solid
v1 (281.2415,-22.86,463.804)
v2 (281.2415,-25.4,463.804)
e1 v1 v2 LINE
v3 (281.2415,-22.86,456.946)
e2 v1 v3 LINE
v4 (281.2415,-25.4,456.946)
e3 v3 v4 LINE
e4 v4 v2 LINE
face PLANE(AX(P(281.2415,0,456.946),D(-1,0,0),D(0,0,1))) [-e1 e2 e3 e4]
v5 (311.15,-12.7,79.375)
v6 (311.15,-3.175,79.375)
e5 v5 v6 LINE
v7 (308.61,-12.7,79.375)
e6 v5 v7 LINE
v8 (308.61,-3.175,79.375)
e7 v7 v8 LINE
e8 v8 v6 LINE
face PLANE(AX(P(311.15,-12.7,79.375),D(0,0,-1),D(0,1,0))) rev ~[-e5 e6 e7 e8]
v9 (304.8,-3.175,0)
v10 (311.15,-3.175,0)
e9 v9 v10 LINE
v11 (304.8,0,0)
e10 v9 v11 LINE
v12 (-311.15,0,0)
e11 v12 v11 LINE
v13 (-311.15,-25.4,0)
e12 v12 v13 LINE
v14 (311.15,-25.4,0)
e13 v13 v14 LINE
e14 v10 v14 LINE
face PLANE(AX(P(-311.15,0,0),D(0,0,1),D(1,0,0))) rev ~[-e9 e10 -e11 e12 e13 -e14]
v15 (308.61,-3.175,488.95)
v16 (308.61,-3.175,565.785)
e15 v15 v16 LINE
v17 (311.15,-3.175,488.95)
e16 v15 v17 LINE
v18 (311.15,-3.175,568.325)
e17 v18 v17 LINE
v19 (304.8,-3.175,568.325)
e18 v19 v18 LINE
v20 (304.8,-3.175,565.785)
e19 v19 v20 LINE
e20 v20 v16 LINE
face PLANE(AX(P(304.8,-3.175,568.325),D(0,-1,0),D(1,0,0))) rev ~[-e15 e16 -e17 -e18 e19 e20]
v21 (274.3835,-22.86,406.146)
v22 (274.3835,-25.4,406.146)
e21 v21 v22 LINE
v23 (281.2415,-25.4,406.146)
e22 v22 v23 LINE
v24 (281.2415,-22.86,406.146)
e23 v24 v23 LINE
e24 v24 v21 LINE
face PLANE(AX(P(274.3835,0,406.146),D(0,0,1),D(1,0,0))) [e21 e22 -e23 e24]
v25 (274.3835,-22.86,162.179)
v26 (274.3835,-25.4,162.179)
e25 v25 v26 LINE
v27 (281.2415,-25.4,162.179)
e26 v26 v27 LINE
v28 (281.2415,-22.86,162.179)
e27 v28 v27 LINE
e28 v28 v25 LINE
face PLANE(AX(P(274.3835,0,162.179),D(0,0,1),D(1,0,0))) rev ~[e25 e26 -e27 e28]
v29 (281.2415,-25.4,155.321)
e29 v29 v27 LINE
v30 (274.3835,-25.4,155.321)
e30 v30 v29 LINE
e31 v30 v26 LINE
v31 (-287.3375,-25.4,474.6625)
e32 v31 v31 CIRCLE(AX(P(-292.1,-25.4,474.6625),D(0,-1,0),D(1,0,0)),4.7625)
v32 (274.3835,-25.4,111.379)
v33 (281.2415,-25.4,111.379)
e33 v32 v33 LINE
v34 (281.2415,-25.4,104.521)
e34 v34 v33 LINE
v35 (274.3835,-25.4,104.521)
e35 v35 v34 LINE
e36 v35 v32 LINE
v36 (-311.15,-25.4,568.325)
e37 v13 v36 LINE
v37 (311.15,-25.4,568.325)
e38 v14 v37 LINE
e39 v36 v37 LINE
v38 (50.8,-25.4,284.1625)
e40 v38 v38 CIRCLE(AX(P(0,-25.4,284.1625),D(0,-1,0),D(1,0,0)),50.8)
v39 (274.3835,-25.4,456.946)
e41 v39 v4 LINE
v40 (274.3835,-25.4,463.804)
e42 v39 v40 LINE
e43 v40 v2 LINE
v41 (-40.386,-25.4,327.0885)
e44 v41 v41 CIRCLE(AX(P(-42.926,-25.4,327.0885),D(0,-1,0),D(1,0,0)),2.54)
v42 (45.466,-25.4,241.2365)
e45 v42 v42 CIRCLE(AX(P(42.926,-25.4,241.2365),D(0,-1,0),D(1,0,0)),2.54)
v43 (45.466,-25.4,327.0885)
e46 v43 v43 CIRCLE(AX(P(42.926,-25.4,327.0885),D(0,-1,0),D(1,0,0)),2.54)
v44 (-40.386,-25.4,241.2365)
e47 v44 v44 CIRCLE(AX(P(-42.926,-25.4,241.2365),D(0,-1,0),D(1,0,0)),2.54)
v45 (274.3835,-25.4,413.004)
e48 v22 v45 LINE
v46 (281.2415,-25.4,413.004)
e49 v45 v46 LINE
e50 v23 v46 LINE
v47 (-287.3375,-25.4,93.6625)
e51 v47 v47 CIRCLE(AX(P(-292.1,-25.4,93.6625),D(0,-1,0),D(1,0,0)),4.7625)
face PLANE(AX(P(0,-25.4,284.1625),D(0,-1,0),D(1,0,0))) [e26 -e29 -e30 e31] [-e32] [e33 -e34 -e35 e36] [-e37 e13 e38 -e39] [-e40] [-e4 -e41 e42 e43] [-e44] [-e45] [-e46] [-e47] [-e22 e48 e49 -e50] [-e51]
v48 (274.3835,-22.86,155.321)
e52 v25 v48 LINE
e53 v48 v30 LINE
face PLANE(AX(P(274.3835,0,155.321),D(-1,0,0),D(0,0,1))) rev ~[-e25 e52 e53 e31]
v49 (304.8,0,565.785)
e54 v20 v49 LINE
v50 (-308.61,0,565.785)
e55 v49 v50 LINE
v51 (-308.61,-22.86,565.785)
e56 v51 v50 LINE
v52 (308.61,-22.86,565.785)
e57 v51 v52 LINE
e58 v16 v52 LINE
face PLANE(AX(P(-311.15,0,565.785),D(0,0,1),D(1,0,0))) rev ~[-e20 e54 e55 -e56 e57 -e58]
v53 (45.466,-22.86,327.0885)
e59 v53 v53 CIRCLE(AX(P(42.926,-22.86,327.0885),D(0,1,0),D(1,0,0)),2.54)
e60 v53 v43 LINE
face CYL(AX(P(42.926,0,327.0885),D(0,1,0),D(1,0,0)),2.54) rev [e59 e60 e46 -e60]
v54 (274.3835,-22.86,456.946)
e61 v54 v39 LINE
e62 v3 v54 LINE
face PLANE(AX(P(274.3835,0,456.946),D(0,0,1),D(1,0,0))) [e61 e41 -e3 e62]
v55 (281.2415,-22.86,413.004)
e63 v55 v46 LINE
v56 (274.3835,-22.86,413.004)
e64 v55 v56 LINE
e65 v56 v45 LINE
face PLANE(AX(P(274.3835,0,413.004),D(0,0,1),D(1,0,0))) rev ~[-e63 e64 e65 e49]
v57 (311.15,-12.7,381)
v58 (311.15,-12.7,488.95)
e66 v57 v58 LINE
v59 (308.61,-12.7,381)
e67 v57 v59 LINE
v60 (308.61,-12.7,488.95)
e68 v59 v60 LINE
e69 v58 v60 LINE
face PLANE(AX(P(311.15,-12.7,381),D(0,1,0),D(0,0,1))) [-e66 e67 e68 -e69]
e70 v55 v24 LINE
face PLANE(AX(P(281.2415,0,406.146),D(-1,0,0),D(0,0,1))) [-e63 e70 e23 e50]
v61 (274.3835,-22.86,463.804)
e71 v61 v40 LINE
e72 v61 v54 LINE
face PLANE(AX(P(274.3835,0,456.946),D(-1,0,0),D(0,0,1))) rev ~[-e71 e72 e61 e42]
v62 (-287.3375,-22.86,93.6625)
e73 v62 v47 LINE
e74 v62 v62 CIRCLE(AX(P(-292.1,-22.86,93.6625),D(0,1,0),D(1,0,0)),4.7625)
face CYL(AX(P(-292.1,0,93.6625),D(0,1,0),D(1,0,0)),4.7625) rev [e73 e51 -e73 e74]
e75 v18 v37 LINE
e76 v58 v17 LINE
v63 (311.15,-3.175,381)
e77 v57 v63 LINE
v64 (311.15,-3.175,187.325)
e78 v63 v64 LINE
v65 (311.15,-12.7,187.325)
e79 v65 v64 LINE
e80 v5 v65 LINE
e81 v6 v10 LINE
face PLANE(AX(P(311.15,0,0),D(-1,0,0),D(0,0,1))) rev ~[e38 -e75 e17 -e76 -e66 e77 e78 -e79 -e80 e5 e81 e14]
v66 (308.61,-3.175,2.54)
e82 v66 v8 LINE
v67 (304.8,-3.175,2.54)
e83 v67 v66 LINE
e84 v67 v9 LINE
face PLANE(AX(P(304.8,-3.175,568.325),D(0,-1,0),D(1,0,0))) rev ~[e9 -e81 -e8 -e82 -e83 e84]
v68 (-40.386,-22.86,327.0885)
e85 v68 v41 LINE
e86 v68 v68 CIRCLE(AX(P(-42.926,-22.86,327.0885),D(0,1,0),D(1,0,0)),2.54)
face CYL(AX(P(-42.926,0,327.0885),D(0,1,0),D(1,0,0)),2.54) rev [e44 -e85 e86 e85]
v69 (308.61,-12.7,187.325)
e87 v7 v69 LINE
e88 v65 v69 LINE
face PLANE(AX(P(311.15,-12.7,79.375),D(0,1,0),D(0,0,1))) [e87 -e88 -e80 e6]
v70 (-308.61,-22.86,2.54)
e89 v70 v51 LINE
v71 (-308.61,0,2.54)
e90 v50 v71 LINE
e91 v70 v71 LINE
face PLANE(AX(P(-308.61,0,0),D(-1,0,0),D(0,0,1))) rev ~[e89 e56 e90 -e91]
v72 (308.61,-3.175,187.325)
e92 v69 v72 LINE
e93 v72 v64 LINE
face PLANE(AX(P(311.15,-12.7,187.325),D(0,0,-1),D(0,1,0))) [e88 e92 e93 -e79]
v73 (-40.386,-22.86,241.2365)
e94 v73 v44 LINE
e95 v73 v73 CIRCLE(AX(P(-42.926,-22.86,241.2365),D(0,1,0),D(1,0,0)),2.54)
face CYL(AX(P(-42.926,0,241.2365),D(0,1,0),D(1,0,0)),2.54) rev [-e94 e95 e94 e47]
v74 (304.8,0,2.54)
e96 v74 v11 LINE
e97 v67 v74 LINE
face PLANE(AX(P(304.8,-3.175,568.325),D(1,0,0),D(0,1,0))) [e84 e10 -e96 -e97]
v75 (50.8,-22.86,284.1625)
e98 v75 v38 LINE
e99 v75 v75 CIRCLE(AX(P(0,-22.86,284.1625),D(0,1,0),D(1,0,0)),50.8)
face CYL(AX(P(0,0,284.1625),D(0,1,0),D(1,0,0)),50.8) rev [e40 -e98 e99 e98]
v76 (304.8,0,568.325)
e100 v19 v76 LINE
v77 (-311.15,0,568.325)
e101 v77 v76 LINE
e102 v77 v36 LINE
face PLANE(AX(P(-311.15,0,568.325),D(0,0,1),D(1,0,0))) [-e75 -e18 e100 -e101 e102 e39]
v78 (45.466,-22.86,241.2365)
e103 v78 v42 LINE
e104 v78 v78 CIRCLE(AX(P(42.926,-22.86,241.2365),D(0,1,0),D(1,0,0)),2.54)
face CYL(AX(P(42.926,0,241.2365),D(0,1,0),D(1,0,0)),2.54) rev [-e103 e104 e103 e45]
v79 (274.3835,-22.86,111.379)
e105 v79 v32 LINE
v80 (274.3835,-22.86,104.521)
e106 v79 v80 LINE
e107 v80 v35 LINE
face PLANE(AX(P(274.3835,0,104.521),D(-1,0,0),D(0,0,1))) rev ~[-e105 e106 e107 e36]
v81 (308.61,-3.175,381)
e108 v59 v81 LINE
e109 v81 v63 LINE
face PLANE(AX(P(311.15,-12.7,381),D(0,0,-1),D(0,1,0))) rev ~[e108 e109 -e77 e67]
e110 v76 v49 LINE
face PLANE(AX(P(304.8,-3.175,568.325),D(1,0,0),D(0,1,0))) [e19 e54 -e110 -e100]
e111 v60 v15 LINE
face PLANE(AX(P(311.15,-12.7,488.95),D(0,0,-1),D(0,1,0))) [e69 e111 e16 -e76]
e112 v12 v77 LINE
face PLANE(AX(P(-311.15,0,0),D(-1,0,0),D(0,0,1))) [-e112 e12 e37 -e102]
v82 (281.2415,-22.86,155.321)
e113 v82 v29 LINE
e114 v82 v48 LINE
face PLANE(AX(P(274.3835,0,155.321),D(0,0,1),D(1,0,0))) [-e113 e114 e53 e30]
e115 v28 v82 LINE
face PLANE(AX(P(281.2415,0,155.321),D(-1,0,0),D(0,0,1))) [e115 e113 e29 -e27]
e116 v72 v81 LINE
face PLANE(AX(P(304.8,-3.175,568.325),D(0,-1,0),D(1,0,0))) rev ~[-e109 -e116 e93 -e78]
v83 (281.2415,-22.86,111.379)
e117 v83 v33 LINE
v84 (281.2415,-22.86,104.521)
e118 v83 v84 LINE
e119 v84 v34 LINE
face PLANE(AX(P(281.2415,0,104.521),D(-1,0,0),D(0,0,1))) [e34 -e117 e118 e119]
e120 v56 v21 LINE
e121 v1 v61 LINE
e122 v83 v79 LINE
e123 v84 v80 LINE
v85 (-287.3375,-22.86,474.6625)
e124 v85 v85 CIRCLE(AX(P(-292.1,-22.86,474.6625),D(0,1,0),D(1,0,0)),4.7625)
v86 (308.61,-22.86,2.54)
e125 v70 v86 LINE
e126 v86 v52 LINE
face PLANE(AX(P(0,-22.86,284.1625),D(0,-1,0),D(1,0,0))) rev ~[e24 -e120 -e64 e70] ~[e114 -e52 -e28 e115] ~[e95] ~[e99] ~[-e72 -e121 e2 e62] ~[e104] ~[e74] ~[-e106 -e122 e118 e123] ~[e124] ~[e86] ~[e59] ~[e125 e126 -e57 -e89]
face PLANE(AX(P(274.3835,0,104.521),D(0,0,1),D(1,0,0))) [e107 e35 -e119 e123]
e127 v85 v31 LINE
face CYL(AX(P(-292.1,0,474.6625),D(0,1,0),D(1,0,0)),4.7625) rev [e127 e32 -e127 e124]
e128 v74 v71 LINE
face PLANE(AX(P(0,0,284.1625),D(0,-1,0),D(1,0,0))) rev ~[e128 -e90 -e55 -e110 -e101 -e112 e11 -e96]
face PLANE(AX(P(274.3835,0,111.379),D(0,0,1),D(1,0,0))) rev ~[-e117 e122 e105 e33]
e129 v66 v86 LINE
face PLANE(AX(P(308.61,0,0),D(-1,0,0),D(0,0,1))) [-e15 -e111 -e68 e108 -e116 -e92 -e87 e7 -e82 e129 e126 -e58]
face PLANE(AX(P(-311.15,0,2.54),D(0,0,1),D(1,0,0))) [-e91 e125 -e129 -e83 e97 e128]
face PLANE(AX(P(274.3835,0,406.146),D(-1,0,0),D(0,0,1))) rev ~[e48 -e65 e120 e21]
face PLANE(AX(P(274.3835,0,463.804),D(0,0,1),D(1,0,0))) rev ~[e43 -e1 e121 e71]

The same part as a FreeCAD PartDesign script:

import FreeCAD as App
import Part
import Sketcher
from FreeCAD import Vector
Q = App.Units.Quantity


def faces_at(feature, points):
    """Names of the faces that lie closest to the given points."""
    faces = feature.Shape.Faces
    near = lambda p: min(range(len(faces)), key=lambda i: faces[i].distToShape(Part.Vertex(*p))[0])
    return sorted({f"Face{near(p) + 1}" for p in points})


def add_polygon(sketch, points):
    """Adds a closed chain of lines whose ends are joined by coincident constraints."""
    first, n = sketch.GeometryCount, len(points)
    for a, b in zip(points, points[1:] + points[:1]):
        sketch.addGeometry(Part.LineSegment(App.Vector(*a, 0), App.Vector(*b, 0)), False)
    for i in range(n):
        sketch.addConstraint(Sketcher.Constraint("Coincident", first + i, 2, first + (i + 1) % n, 1))

doc = App.newDocument("Part")
body = doc.addObject("PartDesign::Body", "Body")

sketch1 = body.newObject("Sketcher::SketchObject", "Sketch")
sketch1.AttachmentSupport = (doc.getObject("XZ_Plane"), [""])
sketch1.MapMode = "FlatFace"
add_polygon(sketch1, [(-311.1, 568.3), (-311.1, 0), (311.1, 0), (311.1, 568.3)])
sketch1.addGeometry(Part.Circle(Vector(-292.1, 93.7, 0), Vector(0, 0, 1), 4.8), False)
sketch1.addGeometry(Part.Circle(Vector(-42.9, 241.2, 0), Vector(0, 0, 1), 2.5), False)
add_polygon(sketch1, [(281.2, 104.5), (274.4, 104.5), (274.4, 111.4), (281.2, 111.4)])
add_polygon(sketch1, [(281.2, 155.3), (274.4, 155.3), (274.4, 162.2), (281.2, 162.2)])
sketch1.addGeometry(Part.Circle(Vector(42.9, 241.2, 0), Vector(0, 0, 1), 2.5), False)
sketch1.addGeometry(Part.Circle(Vector(-42.9, 327.1, 0), Vector(0, 0, 1), 2.5), False)
sketch1.addGeometry(Part.Circle(Vector(-292.1, 474.7, 0), Vector(0, 0, 1), 4.8), False)
sketch1.addGeometry(Part.Circle(Vector(0, 284.2, 0), Vector(0, 0, 1), 50.8), False)
sketch1.addGeometry(Part.Circle(Vector(42.9, 327.1, 0), Vector(0, 0, 1), 2.5), False)
add_polygon(sketch1, [(281.2, 406.1), (274.4, 406.1), (274.4, 413), (281.2, 413)])
add_polygon(sketch1, [(281.2, 456.9), (274.4, 456.9), (274.4, 463.8), (281.2, 463.8)])
sketch1.addConstraint(Sketcher.Constraint("Vertical", 0))
sketch1.addConstraint(Sketcher.Constraint("Horizontal", 1))
sketch1.addConstraint(Sketcher.Constraint("Vertical", 2))
sketch1.addConstraint(Sketcher.Constraint("Horizontal", 3))
sketch1.addConstraint(Sketcher.Constraint("Horizontal", 6))
sketch1.addConstraint(Sketcher.Constraint("Vertical", 7))
sketch1.addConstraint(Sketcher.Constraint("Horizontal", 8))
sketch1.addConstraint(Sketcher.Constraint("Vertical", 9))
sketch1.addConstraint(Sketcher.Constraint("Horizontal", 10))
sketch1.addConstraint(Sketcher.Constraint("Vertical", 11))
sketch1.addConstraint(Sketcher.Constraint("Horizontal", 12))
sketch1.addConstraint(Sketcher.Constraint("Vertical", 13))
sketch1.addConstraint(Sketcher.Constraint("Horizontal", 19))
sketch1.addConstraint(Sketcher.Constraint("Vertical", 20))
sketch1.addConstraint(Sketcher.Constraint("Horizontal", 21))
sketch1.addConstraint(Sketcher.Constraint("Vertical", 22))
sketch1.addConstraint(Sketcher.Constraint("Horizontal", 23))
sketch1.addConstraint(Sketcher.Constraint("Vertical", 24))
sketch1.addConstraint(Sketcher.Constraint("Horizontal", 25))
sketch1.addConstraint(Sketcher.Constraint("Vertical", 26))
sketch1.addConstraint(Sketcher.Constraint("Equal", 5, 14))
sketch1.addConstraint(Sketcher.Constraint("Equal", 14, 15))
sketch1.addConstraint(Sketcher.Constraint("Equal", 4, 16))
sketch1.addConstraint(Sketcher.Constraint("Equal", 15, 18))
sketch1.addConstraint(Sketcher.Constraint("Symmetric", 0, 2, 1, 2, -1, 1))
sketch1.addConstraint(Sketcher.Constraint("Symmetric", 5, 3, 14, 3, -2))
sketch1.addConstraint(Sketcher.Constraint("Symmetric", 15, 3, 18, 3, -2))
sketch1.addConstraint(Sketcher.Constraint("PointOnObject", 17, 3, -2))
sketch1.addConstraint(Sketcher.Constraint("Vertical", 5, 3, 15, 3))
sketch1.addConstraint(Sketcher.Constraint("Vertical", 4, 3, 16, 3))
sketch1.addConstraint(Sketcher.Constraint("Vertical", 7, 2, 10, 2))
sketch1.addConstraint(Sketcher.Constraint("Vertical", 9, 2, 12, 2))
sketch1.addConstraint(Sketcher.Constraint("Vertical", 11, 2, 19, 2))
sketch1.addConstraint(Sketcher.Constraint("Vertical", 13, 2, 21, 2))
sketch1.addConstraint(Sketcher.Constraint("Vertical", 20, 2, 23, 2))
sketch1.addConstraint(Sketcher.Constraint("Vertical", 22, 2, 25, 2))
sketch1.addConstraint(Sketcher.Constraint("Equal", 25, 7))
sketch1.addConstraint(Sketcher.Constraint("Equal", 9, 11))
sketch1.addConstraint(Sketcher.Constraint("Equal", 13, 20))
sketch1.addConstraint(Sketcher.Constraint("Equal", 22, 24))
sketch1.addConstraint(Sketcher.Constraint("Diameter", 17, Q("4 in")))
sketch1.addConstraint(Sketcher.Constraint("Diameter", 5, Q("0.2 in")))
sketch1.addConstraint(Sketcher.Constraint("Diameter", 4, Q("0.375 in")))
sketch1.addConstraint(Sketcher.Constraint("DistanceX", 1, 1, 1, 2, Q("24.5 in")))
sketch1.addConstraint(Sketcher.Constraint("DistanceY", 4, 3, 16, 3, Q("15 in")))
sketch1.addConstraint(Sketcher.Constraint("DistanceY", 6, 2, 10, 2, Q("2 in")))
sketch1.addConstraint(Sketcher.Constraint("DistanceY", 19, 2, 23, 2, Q("2 in")))
sketch1.addConstraint(Sketcher.Constraint("DistanceX", 6, 2, 6, 1, Q("0.27 in")))
sketch1.addConstraint(Sketcher.Constraint("DistanceX", 4, 3, -1, 1, Q("11.5 in")))
sketch1.addConstraint(Sketcher.Constraint("DistanceY", 4, 3, 17, 3, Q("7.5 in")))
sketch1.addConstraint(Sketcher.Constraint("DistanceY", 0, 2, 0, 1, Q("22.375 in")))
sketch1.addConstraint(Sketcher.Constraint("DistanceX", 5, 3, -1, 1, Q("1.69 in")))
sketch1.addConstraint(Sketcher.Constraint("DistanceY", -1, 1, 19, 2, Q("15.99 in")))
sketch1.addConstraint(Sketcher.Constraint("DistanceY", 4, 3, 5, 3, Q("5.81 in")))
sketch1.addConstraint(Sketcher.Constraint("DistanceY", 5, 3, 15, 3, Q("3.38 in")))
sketch1.addConstraint(Sketcher.Constraint("DistanceY", -1, 1, 4, 3, Q("3.6875 in")))
sketch1.addConstraint(Sketcher.Constraint("DistanceY", -1, 1, 6, 2, Q("4.115 in")))
sketch1.addConstraint(Sketcher.Constraint("DistanceX", -1, 1, 6, 2, Q("10.8025 in")))
pad1 = body.newObject("PartDesign::Pad", "Pad")
pad1.Profile = sketch1
pad1.Length = Q("1 in")
doc.recompute()

thickness = body.newObject("PartDesign::Thickness", "Thickness")
thickness.Base = (pad1, faces_at(pad1, [(-124.46, 0, 170.498)]))
thickness.Value = Q("0.1 in")
thickness.Reversed = True
thickness.Join = "Intersection"

sketch2 = body.newObject("Sketcher::SketchObject", "Sketch001")
sketch2.AttachmentSupport = (doc.getObject("XY_Plane"), [""])
sketch2.MapMode = "FlatFace"
sketch2.AttachmentOffset = App.Placement(Vector(0, 0, 0.1 * 25.4), App.Rotation())
add_polygon(sketch2, [(-309, 0), (-309, -23), (309, -23), (309, 0)])
sketch2.addConstraint(Sketcher.Constraint("Vertical", 0))
sketch2.addConstraint(Sketcher.Constraint("Horizontal", 1))
sketch2.addConstraint(Sketcher.Constraint("Vertical", 2))
sketch2.addConstraint(Sketcher.Constraint("Horizontal", 3))
sketch2.addConstraint(Sketcher.Constraint("Symmetric", 2, 2, 3, 2, -1, 1))
sketch2.addConstraint(Sketcher.Constraint("DistanceX", 1, 1, 1, 2, Q("24.3 in")))
sketch2.addConstraint(Sketcher.Constraint("DistanceY", 0, 2, 0, 1, Q("0.9 in")))
pocket1 = body.newObject("PartDesign::Pocket", "Pocket")
pocket1.Profile = sketch2
pocket1.Length = Q("22.175 in")
pocket1.Reversed = True

sketch3 = body.newObject("Sketcher::SketchObject", "Sketch002")
sketch3.AttachmentSupport = (doc.getObject("XY_Plane"), [""])
sketch3.MapMode = "FlatFace"
sketch3.AttachmentOffset = App.Placement(Vector(0, 0, 22.375 * 25.4), App.Rotation())
add_polygon(sketch3, [(304.8, 0), (304.8, -3.2), (311.1, -3.2), (311.1, 0)])
sketch3.addConstraint(Sketcher.Constraint("Vertical", 0))
sketch3.addConstraint(Sketcher.Constraint("Horizontal", 1))
sketch3.addConstraint(Sketcher.Constraint("Vertical", 2))
sketch3.addConstraint(Sketcher.Constraint("Horizontal", 3))
sketch3.addConstraint(Sketcher.Constraint("PointOnObject", 2, 2, -1))
sketch3.addConstraint(Sketcher.Constraint("DistanceX", -1, 1, 0, 2, Q("12 in")))
sketch3.addConstraint(Sketcher.Constraint("DistanceX", 1, 1, 1, 2, Q("0.25 in")))
sketch3.addConstraint(Sketcher.Constraint("DistanceY", 0, 2, 0, 1, Q("0.125 in")))
pocket2 = body.newObject("PartDesign::Pocket", "Pocket001")
pocket2.Profile = sketch3
pocket2.Type = "ThroughAll"

sketch4 = body.newObject("Sketcher::SketchObject", "Sketch003")
sketch4.AttachmentSupport = (doc.getObject("YZ_Plane"), [""])
sketch4.MapMode = "FlatFace"
sketch4.AttachmentOffset = App.Placement(Vector(0, 0, 12.25 * 25.4), App.Rotation())
add_polygon(sketch4, [(-13, 489), (-13, 381), (0, 381), (0, 489)])
add_polygon(sketch4, [(-13, 187), (-13, 79), (0, 79), (0, 187)])
sketch4.addConstraint(Sketcher.Constraint("Vertical", 0))
sketch4.addConstraint(Sketcher.Constraint("Horizontal", 1))
sketch4.addConstraint(Sketcher.Constraint("Vertical", 2))
sketch4.addConstraint(Sketcher.Constraint("Horizontal", 3))
sketch4.addConstraint(Sketcher.Constraint("Vertical", 4))
sketch4.addConstraint(Sketcher.Constraint("Horizontal", 5))
sketch4.addConstraint(Sketcher.Constraint("Vertical", 6))
sketch4.addConstraint(Sketcher.Constraint("Horizontal", 7))
sketch4.addConstraint(Sketcher.Constraint("PointOnObject", 1, 2, -2))
sketch4.addConstraint(Sketcher.Constraint("PointOnObject", 5, 2, -2))
sketch4.addConstraint(Sketcher.Constraint("Vertical", 3, 2, 4, 2))
sketch4.addConstraint(Sketcher.Constraint("Equal", 2, 4))
sketch4.addConstraint(Sketcher.Constraint("DistanceX", 1, 1, 1, 2, Q("0.5 in")))
sketch4.addConstraint(Sketcher.Constraint("DistanceY", -1, 1, 0, 2, Q("15 in")))
sketch4.addConstraint(Sketcher.Constraint("DistanceY", 0, 2, 0, 1, Q("4.25 in")))
sketch4.addConstraint(Sketcher.Constraint("DistanceY", -1, 1, 4, 2, Q("3.125 in")))
pocket3 = body.newObject("PartDesign::Pocket", "Pocket002")
pocket3.Profile = sketch4
pocket3.Length = Q("0.1 in")

doc.recompute()
